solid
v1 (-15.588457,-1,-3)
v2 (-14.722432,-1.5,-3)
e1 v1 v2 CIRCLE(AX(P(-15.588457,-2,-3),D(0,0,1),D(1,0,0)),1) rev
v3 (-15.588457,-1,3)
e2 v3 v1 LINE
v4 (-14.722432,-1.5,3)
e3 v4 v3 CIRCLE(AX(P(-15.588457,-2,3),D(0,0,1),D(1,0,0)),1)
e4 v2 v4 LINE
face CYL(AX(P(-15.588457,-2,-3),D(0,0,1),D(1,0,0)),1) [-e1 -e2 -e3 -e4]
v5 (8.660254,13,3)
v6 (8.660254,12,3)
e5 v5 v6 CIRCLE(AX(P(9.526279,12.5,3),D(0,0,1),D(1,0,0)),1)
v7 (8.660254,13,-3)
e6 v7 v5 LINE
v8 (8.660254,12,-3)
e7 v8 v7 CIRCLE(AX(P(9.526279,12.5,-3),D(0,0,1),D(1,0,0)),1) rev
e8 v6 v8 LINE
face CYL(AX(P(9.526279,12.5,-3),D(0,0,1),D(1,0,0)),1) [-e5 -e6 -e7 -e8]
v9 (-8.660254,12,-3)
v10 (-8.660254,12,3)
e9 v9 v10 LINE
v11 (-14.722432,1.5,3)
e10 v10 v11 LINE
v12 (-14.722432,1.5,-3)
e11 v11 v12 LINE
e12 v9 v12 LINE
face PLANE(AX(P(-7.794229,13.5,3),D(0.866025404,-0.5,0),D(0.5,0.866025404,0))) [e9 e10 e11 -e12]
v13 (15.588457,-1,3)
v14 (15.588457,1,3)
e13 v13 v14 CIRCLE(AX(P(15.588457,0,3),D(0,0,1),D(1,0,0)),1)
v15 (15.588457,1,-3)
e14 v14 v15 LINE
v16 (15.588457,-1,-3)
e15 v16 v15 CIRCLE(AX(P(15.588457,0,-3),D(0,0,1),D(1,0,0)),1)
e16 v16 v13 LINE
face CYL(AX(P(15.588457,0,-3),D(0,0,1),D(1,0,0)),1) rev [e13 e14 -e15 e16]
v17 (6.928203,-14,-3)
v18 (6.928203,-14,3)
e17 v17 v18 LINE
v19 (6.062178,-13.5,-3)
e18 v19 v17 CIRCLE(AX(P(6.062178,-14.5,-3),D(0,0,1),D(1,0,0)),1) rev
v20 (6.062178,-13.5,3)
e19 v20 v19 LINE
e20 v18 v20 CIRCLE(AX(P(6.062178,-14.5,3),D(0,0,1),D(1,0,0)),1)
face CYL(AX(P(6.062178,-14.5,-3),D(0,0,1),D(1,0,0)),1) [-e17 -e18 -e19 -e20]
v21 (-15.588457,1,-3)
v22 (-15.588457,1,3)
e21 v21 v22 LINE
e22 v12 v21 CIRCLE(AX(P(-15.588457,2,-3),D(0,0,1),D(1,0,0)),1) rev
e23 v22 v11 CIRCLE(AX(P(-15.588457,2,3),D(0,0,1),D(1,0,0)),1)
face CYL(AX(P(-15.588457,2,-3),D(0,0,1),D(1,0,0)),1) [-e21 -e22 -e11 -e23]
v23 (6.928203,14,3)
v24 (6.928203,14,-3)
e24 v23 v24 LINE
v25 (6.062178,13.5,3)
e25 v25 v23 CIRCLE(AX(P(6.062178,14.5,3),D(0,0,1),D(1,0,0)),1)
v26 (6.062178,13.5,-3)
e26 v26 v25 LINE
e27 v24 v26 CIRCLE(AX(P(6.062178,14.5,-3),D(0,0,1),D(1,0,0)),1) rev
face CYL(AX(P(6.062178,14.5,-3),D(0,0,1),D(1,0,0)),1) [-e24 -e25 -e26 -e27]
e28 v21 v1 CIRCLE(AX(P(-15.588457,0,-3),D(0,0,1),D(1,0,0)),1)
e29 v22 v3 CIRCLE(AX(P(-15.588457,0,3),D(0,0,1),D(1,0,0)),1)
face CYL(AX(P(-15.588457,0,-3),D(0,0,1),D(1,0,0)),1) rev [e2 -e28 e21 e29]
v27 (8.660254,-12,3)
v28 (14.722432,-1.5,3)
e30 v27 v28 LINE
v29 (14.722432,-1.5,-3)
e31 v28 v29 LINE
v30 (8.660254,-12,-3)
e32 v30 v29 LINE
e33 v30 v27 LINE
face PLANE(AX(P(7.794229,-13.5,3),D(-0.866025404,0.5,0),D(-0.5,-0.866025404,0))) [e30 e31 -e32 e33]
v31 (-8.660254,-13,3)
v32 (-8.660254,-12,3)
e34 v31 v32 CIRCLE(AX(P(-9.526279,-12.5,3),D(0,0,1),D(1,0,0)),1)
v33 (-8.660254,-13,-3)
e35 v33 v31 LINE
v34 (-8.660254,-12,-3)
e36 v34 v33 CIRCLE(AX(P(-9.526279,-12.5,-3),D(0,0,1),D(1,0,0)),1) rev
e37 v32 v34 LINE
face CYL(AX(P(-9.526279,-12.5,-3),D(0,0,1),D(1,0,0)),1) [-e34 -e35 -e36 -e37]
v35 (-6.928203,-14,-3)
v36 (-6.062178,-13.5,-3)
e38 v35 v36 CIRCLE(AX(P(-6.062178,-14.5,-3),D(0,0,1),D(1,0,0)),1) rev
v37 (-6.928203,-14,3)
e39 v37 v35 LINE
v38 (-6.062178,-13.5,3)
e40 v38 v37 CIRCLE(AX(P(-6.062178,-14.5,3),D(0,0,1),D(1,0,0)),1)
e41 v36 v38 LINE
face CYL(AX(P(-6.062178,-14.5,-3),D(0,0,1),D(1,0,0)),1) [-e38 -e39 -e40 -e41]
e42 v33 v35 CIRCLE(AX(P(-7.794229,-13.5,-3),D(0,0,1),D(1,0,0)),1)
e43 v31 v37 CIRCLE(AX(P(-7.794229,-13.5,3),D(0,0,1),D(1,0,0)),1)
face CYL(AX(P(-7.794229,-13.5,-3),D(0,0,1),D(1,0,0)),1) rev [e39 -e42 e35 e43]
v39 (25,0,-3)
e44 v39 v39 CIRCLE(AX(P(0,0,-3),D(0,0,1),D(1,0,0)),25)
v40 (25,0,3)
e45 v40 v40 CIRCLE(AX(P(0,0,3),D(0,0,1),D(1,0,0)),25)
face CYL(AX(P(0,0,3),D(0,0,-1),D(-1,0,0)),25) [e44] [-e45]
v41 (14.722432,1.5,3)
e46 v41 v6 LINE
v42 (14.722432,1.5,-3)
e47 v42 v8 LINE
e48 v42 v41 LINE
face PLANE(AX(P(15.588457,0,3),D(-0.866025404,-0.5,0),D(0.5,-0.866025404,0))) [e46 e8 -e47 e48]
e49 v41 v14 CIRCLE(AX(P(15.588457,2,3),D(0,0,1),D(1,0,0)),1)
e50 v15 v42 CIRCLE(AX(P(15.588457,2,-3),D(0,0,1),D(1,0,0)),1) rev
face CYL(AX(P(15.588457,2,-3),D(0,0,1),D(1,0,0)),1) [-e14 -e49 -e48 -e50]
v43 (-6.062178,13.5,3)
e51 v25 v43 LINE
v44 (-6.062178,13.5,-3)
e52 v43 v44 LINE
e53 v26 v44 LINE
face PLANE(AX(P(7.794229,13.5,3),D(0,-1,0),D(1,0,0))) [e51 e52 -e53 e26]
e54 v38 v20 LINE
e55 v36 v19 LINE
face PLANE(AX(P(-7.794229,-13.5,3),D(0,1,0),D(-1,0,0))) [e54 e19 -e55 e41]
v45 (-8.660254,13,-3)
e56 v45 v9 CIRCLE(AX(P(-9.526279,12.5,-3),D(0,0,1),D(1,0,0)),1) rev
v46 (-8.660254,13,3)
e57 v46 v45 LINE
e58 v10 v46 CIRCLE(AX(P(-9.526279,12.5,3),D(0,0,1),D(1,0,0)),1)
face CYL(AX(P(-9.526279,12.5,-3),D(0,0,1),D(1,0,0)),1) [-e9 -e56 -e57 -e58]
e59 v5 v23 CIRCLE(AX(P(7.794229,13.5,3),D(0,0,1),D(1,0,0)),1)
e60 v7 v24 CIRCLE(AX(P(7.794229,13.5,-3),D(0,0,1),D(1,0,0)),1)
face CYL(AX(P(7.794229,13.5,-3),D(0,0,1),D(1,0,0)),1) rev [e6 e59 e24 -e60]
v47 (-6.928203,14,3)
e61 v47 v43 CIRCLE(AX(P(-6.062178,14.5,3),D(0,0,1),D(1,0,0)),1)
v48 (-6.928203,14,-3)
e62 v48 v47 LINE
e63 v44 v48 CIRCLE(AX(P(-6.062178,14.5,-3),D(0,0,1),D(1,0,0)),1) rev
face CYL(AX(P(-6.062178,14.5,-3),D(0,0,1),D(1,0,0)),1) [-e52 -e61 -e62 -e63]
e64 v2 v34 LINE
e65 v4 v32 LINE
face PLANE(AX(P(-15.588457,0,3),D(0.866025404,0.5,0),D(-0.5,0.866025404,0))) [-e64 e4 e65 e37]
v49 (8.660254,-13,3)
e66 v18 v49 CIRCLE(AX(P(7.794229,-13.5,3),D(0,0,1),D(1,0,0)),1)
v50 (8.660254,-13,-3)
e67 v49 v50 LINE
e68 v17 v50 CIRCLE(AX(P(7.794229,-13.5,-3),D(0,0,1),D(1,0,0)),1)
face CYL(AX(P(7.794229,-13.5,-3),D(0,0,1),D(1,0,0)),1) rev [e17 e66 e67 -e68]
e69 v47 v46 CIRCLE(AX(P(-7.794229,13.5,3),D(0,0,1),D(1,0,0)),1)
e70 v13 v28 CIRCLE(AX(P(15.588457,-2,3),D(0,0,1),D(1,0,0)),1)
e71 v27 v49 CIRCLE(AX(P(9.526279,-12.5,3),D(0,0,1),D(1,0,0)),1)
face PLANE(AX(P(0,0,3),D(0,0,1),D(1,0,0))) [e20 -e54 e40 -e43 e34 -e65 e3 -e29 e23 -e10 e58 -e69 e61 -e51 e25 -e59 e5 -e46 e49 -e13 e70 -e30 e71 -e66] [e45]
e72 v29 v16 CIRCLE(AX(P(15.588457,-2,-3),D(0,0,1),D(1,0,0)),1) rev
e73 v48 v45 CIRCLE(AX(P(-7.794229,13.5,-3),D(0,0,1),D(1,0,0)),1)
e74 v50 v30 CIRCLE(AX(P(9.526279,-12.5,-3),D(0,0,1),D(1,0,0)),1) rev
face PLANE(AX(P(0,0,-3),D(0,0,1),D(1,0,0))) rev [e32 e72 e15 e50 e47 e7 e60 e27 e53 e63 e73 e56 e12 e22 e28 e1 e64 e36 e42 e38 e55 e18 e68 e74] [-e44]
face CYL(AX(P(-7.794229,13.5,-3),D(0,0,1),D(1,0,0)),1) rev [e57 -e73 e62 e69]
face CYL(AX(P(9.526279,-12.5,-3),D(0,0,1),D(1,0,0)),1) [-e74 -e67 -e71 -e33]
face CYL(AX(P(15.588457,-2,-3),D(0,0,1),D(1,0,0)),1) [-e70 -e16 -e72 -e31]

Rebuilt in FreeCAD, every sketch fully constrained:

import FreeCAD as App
import Part
import Sketcher

V = App.Vector
Q = App.Units.Quantity


def edges_at(feature, points):
    """Names of the edges that pass closest to the given points."""
    edges = feature.Shape.Edges
    near = lambda p: min(range(len(edges)), key=lambda i: edges[i].distToShape(Part.Vertex(*p))[0])
    return sorted({f"Edge{near(p) + 1}" for p in points})


def add_polygon(sketch, points):
    """Adds a closed chain of lines whose ends are joined by coincident constraints."""
    first, n = sketch.GeometryCount, len(points)
    for a, b in zip(points, points[1:] + points[:1]):
        sketch.addGeometry(Part.LineSegment(App.Vector(*a, 0), App.Vector(*b, 0)), False)
    for i in range(n):
        sketch.addConstraint(Sketcher.Constraint("Coincident", first + i, 2, first + (i + 1) % n, 1))

doc = App.newDocument("Part")
body = doc.addObject("PartDesign::Body", "Body")

# Sketch on XY plane
sketch1 = body.newObject("Sketcher::SketchObject", "Sketch")
sketch1.AttachmentSupport = (doc.getObject("XY_Plane"), [""])
sketch1.MapMode = "FlatFace"
sketch1.addGeometry(Part.Circle(V(0, 0, 0), V(0, 0, 1), 25), False)  # 0
add_polygon(sketch1, [(-8, -14), (-16, 0), (-8, 14), (8, 14), (16, 0), (8, -14)])  # lines 1-6
sketch1.addConstraint([
    Sketcher.Constraint("Horizontal", 3),
    Sketcher.Constraint("Horizontal", 6),
    Sketcher.Constraint("Coincident", 0, 3, -1, 1),
    Sketcher.Constraint("Symmetric", 1, 2, 4, 2, -1, 1),
    Sketcher.Constraint("Symmetric", 2, 2, 5, 2, -1, 1),
    Sketcher.Constraint("PointOnObject", 1, 2, -1),
    Sketcher.Constraint("Parallel", 1, 4),
    Sketcher.Constraint("Vertical", 3, 2, 5, 2),
    Sketcher.Constraint("Diameter", 0, Q("50 mm")),
    Sketcher.Constraint("Angle", 1, Q("120 deg")),
    Sketcher.Constraint("DistanceY", 5, 2, 3, 2, Q("27 mm")),
    Sketcher.Constraint("DistanceX", 3, 1, 3, 2, Q("15.588457 mm")),
])
pad1 = body.newObject("PartDesign::Pad", "Pad")
pad1.Profile = sketch1
pad1.Length = 6
pad1.Midplane = True

# Sketch on XY plane
sketch2 = body.newObject("Sketcher::SketchObject", "Sketch001")
sketch2.AttachmentSupport = (doc.getObject("XY_Plane"), [""])
sketch2.MapMode = "FlatFace"
sketch2.AttachmentOffset = App.Placement(V(0, 0, 3), App.Rotation())
sketch2.addGeometry([
    Part.Circle(V(-7.8, 13.5, 0), V(0, 0, 1), 1),  # 0
    Part.Circle(V(7.8, 13.5, 0), V(0, 0, 1), 1),  # 1
    Part.Circle(V(-15.6, 0, 0), V(0, 0, 1), 1),  # 2
    Part.Circle(V(-7.8, -13.5, 0), V(0, 0, 1), 1),  # 3
    Part.Circle(V(7.8, -13.5, 0), V(0, 0, 1), 1),  # 4
    Part.Circle(V(15.6, 0, 0), V(0, 0, 1), 1),  # 5
], False)
sketch2.addConstraint([
    Sketcher.Constraint("Equal", 0, 1),
    Sketcher.Constraint("Equal", 1, 2),
    Sketcher.Constraint("Equal", 2, 3),
    Sketcher.Constraint("Equal", 3, 4),
    Sketcher.Constraint("Equal", 4, 5),
    Sketcher.Constraint("Symmetric", 1, 3, 3, 3, -1, 1),
    Sketcher.Constraint("Symmetric", 0, 3, 4, 3, -1, 1),
    Sketcher.Constraint("Symmetric", 2, 3, 5, 3, -1, 1),
    Sketcher.Constraint("Symmetric", 0, 3, 1, 3, -2),
    Sketcher.Constraint("PointOnObject", 2, 3, -1),
    Sketcher.Constraint("Diameter", 0, Q("2 mm")),
    Sketcher.Constraint("DistanceY", 3, 3, 0, 3, Q("27 mm")),
    Sketcher.Constraint("DistanceX", 0, 3, -1, 1, Q("7.794229 mm")),
    Sketcher.Constraint("DistanceX", 2, 3, 0, 3, Q("7.794229 mm")),
])
pocket1 = body.newObject("PartDesign::Pocket", "Pocket")
pocket1.Profile = sketch2
pocket1.Type = "ThroughAll"
doc.recompute()

fillet = body.newObject("PartDesign::Fillet", "Fillet")
fillet.Base = (pocket1, edges_at(pocket1, [
    (-6.794, 13.5, 0),
    (6.794, 13.5, 0),
    (15.088, 0.866, 0),
    (8.294, -12.634, 0),
    (-6.794, -13.5, 0),
    (-15.088, -0.866, 0),
    (15.088, -0.866, 0),
    (6.794, -13.5, 0),
    (-8.294, -12.634, 0),
    (-15.088, 0.866, 0),
    (8.294, 12.634, 0),
    (-8.294, 12.634, 0),
]))
fillet.Radius = 1

doc.recompute()
